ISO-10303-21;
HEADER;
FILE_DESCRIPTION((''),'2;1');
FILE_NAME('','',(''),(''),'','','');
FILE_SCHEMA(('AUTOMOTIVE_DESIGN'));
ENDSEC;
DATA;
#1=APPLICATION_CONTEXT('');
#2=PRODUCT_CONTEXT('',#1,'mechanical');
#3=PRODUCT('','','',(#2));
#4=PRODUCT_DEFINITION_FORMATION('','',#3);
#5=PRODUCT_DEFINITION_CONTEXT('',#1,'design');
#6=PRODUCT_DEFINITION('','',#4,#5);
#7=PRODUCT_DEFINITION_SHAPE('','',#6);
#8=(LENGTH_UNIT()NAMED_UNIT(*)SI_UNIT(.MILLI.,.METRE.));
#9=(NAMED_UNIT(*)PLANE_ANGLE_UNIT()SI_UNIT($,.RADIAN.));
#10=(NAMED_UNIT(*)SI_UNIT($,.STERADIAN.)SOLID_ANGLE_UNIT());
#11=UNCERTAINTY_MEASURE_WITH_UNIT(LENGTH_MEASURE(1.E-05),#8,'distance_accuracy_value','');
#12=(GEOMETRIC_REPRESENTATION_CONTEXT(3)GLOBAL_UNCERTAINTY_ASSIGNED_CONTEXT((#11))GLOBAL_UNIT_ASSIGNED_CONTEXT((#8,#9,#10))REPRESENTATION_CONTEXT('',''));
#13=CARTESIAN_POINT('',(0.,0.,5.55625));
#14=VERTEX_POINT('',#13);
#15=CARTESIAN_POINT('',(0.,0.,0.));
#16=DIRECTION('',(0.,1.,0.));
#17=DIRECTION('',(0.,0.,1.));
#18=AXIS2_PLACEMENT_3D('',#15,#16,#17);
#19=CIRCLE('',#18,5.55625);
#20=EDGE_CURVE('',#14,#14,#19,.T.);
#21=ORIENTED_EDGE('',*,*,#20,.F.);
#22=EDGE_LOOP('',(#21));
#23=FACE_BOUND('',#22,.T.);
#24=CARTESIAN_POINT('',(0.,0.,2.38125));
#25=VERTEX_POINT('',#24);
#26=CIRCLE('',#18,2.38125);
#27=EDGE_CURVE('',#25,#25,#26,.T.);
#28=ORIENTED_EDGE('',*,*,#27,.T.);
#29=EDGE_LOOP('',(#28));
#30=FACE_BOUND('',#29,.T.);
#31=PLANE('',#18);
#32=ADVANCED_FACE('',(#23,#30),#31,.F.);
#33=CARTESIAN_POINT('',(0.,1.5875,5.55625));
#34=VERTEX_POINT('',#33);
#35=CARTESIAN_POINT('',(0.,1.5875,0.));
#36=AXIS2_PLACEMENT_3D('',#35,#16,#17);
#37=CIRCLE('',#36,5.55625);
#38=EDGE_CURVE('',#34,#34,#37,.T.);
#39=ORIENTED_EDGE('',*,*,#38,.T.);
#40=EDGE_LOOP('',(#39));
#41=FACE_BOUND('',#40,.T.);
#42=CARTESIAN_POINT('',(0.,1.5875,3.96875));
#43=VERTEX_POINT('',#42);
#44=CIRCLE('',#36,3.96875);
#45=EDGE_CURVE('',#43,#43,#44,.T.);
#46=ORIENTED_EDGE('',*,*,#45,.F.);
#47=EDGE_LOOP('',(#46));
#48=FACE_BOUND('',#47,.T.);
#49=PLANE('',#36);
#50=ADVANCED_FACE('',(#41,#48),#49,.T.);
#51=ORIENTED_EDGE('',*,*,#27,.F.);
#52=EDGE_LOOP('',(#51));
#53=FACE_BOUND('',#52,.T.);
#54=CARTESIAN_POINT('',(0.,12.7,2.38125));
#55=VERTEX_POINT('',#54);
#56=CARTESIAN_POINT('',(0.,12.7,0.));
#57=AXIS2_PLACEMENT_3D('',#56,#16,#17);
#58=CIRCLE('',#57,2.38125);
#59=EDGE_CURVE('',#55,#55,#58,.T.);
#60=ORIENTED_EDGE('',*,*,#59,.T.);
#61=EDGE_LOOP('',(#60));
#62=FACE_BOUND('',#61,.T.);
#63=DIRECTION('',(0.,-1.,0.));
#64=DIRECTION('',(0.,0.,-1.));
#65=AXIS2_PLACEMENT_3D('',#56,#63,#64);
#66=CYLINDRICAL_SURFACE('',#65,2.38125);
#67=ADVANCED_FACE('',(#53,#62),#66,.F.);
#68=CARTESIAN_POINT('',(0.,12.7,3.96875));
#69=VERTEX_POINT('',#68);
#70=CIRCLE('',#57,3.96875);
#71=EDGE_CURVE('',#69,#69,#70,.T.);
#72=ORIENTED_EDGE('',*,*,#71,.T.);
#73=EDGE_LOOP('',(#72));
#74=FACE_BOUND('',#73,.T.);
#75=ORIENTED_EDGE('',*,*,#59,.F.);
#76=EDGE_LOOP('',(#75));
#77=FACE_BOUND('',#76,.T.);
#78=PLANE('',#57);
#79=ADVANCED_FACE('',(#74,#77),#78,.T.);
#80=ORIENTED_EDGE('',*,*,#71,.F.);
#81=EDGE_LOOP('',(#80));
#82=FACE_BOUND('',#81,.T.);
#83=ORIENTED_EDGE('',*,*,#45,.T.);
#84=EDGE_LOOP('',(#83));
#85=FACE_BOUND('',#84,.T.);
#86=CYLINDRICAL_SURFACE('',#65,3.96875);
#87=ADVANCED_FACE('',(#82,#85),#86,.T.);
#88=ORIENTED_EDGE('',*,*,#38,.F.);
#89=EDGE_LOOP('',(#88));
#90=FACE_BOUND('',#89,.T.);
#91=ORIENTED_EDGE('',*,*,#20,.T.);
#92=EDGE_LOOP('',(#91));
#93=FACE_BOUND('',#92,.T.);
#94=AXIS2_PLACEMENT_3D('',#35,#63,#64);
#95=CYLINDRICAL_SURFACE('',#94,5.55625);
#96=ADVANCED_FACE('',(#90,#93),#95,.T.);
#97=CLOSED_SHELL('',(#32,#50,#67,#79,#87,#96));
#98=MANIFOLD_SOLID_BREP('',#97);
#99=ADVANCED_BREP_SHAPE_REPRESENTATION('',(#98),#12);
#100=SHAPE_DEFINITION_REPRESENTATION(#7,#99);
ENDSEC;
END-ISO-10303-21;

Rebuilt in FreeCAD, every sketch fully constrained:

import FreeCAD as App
import Part
import Sketcher
from FreeCAD import Vector
Q = App.Units.Quantity

doc = App.newDocument("Part")
params = doc.addObject("Spreadsheet::Sheet", "Params")
for row, (alias, value) in enumerate([
    ("sketch1_diameter", "0.3125 in"),
    ("sketch1_diameter2", "0.1875 in"),
    ("pad1_length", "0.5 in"),
    ("sketch2_diameter", "0.4375 in"),
    ("sketch2_diameter2", "0.3125 in"),
    ("pad2_length", "0.0625 in"),
], start=1):
    params.set(f"A{row}", alias)
    params.set(f"B{row}", "=" + value)
    params.setAlias(f"B{row}", alias)

body = doc.addObject("PartDesign::Body", "Body")

sketch1 = doc.addObject("Sketcher::SketchObject", "Sketch")
body.addObject(sketch1)
sketch1.AttachmentSupport = (doc.XZ_Plane, [""])
sketch1.MapMode = "FlatFace"
sketch1.addGeometry(Part.Circle(Vector(0, 0, 0), Vector(0, 0, 1), 4), False)
sketch1.addGeometry(Part.Circle(Vector(0, 0, 0), Vector(0, 0, 1), 2.4), False)
sketch1.addConstraint(Sketcher.Constraint("Coincident", 0, 3, -1, 1))
sketch1.addConstraint(Sketcher.Constraint("Coincident", 1, 3, -1, 1))
sketch1.addConstraint(Sketcher.Constraint("Diameter", 0, Q("0.3125 in")))
sketch1.addConstraint(Sketcher.Constraint("Diameter", 1, Q("0.1875 in")))
sketch1.setExpression("Constraints[2]", "Params.sketch1_diameter")
sketch1.setExpression("Constraints[3]", "Params.sketch1_diameter2")
pad1 = doc.addObject("PartDesign::Pad", "Pad")
body.addObject(pad1)
pad1.Profile = sketch1
pad1.setExpression("Length", "Params.pad1_length")
pad1.Reversed = True

sketch2 = doc.addObject("Sketcher::SketchObject", "Sketch001")
body.addObject(sketch2)
sketch2.AttachmentSupport = (doc.XZ_Plane, [""])
sketch2.MapMode = "FlatFace"
sketch2.addGeometry(Part.Circle(Vector(0, 0, 0), Vector(0, 0, 1), 5.6), False)
sketch2.addGeometry(Part.Circle(Vector(0, 0, 0), Vector(0, 0, 1), 4), False)
sketch2.addConstraint(Sketcher.Constraint("Coincident", 0, 3, -1, 1))
sketch2.addConstraint(Sketcher.Constraint("Coincident", 1, 3, -1, 1))
sketch2.addConstraint(Sketcher.Constraint("Diameter", 0, Q("0.4375 in")))
sketch2.addConstraint(Sketcher.Constraint("Diameter", 1, Q("0.3125 in")))
sketch2.setExpression("Constraints[2]", "Params.sketch2_diameter")
sketch2.setExpression("Constraints[3]", "Params.sketch2_diameter2")
pad2 = doc.addObject("PartDesign::Pad", "Pad001")
body.addObject(pad2)
pad2.Profile = sketch2
pad2.setExpression("Length", "Params.pad2_length")
pad2.Reversed = True

doc.recompute()
